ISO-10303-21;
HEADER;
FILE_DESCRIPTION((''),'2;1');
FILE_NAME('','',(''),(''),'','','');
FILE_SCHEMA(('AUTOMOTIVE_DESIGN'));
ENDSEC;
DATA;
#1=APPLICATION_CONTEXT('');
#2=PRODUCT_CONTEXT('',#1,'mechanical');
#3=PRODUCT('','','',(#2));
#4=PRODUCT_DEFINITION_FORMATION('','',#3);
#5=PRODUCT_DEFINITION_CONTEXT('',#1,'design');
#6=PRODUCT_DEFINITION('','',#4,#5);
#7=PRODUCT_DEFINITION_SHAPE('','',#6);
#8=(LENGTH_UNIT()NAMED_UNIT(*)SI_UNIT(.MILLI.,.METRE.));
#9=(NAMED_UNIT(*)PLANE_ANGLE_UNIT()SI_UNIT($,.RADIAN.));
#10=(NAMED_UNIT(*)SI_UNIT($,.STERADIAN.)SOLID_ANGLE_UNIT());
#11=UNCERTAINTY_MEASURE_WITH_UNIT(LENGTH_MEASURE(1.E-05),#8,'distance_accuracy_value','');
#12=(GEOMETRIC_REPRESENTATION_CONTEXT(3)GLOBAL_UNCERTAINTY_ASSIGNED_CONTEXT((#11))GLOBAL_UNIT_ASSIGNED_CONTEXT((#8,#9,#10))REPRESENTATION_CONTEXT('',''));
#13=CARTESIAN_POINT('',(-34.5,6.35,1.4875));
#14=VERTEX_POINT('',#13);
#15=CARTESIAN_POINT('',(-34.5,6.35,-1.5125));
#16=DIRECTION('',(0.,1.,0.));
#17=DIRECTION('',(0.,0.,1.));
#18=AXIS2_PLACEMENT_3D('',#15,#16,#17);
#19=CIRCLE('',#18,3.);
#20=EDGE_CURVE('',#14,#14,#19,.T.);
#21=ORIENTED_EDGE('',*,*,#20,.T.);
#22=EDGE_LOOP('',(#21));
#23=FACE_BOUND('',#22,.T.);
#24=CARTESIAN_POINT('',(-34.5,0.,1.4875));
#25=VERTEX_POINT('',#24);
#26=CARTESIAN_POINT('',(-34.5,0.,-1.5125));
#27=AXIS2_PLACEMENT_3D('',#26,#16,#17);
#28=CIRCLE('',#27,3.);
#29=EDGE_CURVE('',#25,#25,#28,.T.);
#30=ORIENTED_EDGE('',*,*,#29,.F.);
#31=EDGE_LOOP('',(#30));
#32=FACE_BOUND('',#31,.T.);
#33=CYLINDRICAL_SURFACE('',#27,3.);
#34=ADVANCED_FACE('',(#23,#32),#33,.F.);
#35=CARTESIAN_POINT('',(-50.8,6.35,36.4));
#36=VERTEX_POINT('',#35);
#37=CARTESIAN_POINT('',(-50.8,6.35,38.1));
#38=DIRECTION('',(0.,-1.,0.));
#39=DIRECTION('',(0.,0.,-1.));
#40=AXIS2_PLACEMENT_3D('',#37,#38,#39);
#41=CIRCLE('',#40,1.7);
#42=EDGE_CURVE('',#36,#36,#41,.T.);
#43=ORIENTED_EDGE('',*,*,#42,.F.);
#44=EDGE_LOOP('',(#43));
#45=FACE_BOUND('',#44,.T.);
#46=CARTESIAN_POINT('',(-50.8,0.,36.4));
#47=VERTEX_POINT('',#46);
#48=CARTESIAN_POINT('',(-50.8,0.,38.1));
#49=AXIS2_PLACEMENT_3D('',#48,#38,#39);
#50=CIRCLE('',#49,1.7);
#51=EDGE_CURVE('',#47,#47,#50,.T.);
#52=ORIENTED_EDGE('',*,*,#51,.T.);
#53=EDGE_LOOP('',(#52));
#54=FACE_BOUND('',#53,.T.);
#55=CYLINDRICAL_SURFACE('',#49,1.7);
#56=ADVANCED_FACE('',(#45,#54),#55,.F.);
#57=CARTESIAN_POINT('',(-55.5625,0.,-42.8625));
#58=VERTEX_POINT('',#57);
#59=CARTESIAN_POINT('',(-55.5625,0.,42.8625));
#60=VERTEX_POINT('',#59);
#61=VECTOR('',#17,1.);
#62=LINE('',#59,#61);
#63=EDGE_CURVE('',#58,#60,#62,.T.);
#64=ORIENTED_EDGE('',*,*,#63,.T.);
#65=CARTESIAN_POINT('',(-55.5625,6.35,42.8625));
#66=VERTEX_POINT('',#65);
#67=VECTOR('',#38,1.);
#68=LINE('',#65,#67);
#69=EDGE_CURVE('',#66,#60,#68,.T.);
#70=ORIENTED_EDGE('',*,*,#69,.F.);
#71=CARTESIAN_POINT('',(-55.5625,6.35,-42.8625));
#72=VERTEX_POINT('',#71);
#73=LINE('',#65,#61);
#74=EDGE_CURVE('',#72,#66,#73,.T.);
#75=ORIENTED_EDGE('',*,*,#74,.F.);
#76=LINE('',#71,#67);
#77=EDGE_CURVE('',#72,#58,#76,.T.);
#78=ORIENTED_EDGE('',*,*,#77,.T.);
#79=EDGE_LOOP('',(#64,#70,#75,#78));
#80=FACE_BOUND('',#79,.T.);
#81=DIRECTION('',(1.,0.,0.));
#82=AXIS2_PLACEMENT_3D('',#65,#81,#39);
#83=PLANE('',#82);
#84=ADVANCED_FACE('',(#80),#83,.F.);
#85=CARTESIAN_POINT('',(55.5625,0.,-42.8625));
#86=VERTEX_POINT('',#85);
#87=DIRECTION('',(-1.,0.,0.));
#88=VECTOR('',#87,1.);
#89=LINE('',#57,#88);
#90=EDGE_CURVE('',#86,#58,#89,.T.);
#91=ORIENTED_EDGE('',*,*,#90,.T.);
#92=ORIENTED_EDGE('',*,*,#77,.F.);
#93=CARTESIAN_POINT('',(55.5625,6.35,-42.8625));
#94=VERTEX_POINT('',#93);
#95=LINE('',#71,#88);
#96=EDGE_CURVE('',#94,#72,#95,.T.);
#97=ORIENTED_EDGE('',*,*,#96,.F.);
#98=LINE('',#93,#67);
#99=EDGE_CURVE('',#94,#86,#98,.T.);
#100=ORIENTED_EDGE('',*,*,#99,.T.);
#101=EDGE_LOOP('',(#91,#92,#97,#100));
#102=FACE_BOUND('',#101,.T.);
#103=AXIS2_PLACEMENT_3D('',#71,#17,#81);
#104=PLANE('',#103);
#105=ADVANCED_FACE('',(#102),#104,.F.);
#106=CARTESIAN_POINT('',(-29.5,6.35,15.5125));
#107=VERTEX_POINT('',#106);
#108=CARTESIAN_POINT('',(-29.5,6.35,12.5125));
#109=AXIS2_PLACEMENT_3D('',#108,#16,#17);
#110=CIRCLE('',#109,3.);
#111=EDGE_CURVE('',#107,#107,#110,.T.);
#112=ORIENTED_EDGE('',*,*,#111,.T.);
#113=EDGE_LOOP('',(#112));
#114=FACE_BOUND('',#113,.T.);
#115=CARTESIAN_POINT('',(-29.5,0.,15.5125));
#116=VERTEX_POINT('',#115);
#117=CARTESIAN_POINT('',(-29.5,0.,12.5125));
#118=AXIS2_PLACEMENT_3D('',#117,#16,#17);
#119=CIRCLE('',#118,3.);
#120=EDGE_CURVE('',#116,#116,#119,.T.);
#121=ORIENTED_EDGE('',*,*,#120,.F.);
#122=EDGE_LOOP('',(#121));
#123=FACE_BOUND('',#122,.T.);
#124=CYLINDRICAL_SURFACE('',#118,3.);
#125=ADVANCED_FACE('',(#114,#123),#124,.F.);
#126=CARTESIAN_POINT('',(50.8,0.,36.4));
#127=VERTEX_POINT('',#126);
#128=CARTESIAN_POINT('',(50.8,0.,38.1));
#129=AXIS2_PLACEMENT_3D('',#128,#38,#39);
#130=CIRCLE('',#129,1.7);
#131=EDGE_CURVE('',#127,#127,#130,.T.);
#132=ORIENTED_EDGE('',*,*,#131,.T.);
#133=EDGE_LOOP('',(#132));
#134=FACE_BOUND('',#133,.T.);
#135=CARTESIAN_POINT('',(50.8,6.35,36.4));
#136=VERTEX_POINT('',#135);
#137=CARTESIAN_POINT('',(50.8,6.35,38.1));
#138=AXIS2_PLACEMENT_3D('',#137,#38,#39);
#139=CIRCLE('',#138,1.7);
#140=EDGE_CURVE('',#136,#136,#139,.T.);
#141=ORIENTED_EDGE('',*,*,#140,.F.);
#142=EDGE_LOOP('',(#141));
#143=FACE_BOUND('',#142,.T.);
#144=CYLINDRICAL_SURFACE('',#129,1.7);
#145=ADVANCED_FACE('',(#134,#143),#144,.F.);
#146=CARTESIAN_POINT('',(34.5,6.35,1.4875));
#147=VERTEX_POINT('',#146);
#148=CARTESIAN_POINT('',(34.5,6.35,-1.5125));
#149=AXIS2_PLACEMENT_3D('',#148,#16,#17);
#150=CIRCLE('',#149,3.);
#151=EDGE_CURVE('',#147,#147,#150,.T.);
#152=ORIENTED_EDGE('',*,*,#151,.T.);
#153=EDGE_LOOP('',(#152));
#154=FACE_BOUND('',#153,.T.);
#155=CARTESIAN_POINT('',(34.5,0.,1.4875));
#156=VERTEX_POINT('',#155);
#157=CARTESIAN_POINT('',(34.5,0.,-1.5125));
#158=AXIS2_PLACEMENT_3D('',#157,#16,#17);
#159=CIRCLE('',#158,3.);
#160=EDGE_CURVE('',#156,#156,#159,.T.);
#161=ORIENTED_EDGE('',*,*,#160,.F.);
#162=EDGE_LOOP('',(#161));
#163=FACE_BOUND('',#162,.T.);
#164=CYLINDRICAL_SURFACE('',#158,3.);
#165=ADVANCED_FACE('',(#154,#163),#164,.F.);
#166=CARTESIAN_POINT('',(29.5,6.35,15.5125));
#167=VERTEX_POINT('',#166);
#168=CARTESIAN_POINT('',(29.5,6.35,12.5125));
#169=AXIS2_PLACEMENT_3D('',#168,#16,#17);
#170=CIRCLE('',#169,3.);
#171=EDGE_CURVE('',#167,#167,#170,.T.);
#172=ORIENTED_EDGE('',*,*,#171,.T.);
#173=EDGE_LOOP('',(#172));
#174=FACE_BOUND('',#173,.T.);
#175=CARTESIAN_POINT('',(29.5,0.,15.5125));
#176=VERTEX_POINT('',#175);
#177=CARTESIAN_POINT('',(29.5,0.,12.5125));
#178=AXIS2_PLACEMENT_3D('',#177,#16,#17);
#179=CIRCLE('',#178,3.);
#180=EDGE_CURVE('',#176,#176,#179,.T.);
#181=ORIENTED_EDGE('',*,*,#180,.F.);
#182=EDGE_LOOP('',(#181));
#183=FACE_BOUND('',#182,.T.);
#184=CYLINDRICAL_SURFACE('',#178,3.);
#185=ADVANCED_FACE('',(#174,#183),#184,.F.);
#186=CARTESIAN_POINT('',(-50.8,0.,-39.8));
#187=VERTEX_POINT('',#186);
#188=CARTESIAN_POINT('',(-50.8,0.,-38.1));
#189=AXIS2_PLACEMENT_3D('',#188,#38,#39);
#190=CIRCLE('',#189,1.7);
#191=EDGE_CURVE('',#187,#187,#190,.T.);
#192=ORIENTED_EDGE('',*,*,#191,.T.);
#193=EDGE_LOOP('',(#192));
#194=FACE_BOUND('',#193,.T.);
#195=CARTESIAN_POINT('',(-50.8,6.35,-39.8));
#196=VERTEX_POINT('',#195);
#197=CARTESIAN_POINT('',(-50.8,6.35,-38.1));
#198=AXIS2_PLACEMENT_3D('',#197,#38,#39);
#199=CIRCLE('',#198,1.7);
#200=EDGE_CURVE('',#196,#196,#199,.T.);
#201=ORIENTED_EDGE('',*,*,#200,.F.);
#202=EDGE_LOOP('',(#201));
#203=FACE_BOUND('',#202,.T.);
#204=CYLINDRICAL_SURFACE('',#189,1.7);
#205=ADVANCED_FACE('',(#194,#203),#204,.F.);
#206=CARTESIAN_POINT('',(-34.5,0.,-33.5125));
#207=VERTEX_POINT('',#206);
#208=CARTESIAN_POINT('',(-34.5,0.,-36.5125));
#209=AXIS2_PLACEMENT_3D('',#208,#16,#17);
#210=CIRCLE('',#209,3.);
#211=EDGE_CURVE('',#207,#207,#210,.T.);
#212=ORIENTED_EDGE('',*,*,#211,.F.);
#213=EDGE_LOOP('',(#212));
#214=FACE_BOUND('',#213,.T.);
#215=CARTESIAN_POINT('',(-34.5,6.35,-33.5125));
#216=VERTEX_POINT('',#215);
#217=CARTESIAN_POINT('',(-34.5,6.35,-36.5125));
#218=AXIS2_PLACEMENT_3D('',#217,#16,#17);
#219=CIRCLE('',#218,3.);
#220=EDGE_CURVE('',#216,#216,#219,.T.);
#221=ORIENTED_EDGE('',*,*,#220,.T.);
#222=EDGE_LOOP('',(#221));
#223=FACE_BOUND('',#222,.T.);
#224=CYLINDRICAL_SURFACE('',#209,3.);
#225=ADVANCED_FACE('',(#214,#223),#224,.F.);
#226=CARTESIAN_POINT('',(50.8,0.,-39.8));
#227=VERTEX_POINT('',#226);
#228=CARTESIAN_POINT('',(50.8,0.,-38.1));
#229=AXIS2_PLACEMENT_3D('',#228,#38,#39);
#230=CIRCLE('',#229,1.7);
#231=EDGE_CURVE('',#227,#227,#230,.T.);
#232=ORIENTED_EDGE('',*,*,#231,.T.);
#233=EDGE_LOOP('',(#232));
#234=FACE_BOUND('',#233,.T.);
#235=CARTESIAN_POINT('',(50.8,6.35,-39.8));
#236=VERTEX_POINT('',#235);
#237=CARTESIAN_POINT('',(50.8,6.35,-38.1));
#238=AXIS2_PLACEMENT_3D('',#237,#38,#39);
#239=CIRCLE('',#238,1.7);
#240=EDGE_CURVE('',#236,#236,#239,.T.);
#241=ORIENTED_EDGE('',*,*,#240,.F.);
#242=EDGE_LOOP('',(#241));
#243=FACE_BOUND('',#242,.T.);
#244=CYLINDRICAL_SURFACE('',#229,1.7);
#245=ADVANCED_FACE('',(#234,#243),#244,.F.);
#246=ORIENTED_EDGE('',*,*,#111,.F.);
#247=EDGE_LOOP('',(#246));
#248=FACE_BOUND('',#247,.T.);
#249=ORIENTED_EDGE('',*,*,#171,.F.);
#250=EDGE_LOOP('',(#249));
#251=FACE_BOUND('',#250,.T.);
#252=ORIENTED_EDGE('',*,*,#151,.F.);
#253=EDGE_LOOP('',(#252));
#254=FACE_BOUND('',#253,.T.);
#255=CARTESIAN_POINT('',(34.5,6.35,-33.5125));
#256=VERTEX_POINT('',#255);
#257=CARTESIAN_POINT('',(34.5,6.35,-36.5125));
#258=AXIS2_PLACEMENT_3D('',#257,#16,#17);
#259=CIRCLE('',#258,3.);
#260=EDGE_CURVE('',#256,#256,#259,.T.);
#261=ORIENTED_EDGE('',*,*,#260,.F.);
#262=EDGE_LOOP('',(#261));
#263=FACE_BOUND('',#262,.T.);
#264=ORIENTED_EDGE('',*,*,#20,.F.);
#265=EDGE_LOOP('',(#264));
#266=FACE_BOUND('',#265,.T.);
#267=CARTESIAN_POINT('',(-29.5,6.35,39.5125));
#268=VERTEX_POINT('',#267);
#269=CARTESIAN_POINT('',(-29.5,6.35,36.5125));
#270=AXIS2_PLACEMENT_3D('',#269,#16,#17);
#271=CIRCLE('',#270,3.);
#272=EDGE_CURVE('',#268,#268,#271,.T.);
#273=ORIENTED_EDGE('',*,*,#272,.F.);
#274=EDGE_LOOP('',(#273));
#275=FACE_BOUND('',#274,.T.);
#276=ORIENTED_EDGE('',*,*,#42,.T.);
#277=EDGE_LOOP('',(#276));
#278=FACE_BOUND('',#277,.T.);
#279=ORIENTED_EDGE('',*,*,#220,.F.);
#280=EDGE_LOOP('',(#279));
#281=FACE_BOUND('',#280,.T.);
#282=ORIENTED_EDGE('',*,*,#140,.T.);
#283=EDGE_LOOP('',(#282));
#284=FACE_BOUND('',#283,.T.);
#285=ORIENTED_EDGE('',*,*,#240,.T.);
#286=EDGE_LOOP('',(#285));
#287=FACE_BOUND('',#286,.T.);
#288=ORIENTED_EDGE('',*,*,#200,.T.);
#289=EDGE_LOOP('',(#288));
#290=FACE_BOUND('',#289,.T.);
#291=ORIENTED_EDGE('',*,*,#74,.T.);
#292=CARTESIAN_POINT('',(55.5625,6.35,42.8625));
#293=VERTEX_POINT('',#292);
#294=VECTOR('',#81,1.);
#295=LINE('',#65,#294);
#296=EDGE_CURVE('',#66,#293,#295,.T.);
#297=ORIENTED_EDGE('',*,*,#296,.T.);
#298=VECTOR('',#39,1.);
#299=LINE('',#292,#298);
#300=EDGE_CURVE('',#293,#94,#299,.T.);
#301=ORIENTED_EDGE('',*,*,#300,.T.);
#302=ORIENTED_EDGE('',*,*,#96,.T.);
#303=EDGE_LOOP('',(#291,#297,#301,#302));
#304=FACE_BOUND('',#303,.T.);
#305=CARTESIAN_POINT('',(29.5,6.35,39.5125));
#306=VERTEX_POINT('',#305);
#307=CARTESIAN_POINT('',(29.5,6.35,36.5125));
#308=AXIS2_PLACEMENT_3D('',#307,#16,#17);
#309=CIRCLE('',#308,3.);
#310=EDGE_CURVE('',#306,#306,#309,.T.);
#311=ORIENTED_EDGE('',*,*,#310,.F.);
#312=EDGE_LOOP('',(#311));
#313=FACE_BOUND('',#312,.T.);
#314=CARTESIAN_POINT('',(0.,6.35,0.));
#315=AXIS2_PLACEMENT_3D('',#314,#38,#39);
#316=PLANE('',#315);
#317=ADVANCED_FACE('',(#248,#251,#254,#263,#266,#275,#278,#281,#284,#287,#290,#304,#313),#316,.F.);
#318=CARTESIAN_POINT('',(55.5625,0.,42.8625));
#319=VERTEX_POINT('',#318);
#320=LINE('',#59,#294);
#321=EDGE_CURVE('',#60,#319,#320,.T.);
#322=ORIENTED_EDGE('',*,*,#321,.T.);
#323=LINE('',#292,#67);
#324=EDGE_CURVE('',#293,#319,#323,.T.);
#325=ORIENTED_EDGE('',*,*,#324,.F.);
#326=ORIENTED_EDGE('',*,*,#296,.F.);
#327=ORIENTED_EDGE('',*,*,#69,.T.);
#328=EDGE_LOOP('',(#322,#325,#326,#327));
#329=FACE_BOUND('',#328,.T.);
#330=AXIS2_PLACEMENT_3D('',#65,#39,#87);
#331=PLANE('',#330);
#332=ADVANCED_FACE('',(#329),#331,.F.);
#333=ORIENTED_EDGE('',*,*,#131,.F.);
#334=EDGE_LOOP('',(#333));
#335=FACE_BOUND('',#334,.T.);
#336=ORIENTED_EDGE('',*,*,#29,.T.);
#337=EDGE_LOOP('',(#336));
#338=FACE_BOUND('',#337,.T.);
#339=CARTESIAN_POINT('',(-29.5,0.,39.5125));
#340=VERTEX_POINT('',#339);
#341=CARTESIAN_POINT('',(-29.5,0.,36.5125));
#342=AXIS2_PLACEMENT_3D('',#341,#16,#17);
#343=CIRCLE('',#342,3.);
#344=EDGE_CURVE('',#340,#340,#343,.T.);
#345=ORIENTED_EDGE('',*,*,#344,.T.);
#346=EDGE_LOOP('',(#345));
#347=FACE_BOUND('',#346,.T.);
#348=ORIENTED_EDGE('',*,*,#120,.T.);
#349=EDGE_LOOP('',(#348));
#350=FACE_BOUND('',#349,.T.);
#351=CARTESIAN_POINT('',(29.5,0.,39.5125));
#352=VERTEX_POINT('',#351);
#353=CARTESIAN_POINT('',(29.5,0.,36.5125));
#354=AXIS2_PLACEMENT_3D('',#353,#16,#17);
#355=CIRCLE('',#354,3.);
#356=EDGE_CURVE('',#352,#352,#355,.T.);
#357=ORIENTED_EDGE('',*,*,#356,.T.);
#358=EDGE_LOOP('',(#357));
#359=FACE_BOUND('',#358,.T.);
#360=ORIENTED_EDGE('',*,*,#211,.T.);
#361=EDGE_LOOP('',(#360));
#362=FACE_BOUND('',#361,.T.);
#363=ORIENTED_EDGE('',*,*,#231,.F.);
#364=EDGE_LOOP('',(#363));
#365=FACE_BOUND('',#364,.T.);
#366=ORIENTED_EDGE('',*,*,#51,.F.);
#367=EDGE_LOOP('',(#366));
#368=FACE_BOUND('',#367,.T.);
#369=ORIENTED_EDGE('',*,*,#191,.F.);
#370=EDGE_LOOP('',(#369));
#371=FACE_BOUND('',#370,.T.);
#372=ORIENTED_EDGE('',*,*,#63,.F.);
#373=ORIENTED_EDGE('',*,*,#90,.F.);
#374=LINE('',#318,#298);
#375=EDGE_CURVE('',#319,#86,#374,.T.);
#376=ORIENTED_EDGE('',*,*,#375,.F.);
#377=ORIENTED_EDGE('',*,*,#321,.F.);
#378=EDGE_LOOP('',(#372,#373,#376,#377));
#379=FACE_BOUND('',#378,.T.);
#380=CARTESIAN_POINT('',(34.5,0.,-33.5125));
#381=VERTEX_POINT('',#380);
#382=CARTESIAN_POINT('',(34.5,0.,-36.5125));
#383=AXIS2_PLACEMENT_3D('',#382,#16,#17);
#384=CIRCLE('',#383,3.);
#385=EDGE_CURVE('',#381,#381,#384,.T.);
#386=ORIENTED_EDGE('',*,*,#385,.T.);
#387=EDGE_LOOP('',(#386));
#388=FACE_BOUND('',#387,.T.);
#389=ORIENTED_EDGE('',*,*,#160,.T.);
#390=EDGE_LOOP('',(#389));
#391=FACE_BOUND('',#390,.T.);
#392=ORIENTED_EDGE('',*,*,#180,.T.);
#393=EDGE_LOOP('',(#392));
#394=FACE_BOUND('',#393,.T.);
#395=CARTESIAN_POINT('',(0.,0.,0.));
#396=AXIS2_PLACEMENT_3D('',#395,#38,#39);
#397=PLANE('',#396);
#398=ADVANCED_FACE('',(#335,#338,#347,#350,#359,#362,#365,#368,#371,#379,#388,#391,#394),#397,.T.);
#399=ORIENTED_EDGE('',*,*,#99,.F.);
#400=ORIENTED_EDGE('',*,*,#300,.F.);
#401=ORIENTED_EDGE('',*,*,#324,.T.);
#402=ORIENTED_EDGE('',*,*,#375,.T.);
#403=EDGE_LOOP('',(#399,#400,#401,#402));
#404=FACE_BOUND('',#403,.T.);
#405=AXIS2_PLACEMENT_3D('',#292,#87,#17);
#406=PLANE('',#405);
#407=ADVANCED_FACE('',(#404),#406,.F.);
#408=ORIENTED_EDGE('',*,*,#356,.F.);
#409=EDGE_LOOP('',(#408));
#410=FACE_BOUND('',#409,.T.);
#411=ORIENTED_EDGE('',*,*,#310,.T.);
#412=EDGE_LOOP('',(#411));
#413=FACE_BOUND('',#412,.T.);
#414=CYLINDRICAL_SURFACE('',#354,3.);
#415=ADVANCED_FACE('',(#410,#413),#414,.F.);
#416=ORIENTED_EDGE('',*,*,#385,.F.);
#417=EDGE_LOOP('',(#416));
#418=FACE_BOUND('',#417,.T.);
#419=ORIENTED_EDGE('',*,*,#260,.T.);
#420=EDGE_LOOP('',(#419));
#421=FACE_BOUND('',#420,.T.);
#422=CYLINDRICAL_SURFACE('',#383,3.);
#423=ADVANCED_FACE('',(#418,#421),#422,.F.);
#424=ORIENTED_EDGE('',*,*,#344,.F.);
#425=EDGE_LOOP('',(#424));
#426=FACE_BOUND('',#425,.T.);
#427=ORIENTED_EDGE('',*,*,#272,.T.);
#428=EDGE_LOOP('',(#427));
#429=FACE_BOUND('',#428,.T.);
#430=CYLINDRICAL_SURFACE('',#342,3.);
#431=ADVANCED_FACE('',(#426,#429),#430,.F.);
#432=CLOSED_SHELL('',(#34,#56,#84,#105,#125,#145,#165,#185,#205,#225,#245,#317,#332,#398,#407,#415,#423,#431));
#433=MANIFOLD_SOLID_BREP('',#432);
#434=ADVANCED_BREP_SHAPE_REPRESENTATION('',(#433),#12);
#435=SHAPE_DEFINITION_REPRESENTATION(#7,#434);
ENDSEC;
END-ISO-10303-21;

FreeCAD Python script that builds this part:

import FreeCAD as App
import Part
import Sketcher
from FreeCAD import Vector
Q = App.Units.Quantity


def add_polygon(sketch, points):
    """Adds a closed chain of lines whose ends are joined by coincident constraints."""
    first, n = sketch.GeometryCount, len(points)
    for a, b in zip(points, points[1:] + points[:1]):
        sketch.addGeometry(Part.LineSegment(App.Vector(*a, 0), App.Vector(*b, 0)), False)
    for i in range(n):
        sketch.addConstraint(Sketcher.Constraint("Coincident", first + i, 2, first + (i + 1) % n, 1))

doc = App.newDocument("Part")
body = doc.addObject("PartDesign::Body", "Body")

sketch1 = body.newObject("Sketcher::SketchObject", "Sketch")
sketch1.AttachmentSupport = (doc.getObject("XZ_Plane"), [""])
sketch1.MapMode = "FlatFace"
add_polygon(sketch1, [(-56, -43), (-56, 43), (56, 43), (56, -43)])
sketch1.addConstraint(Sketcher.Constraint("Vertical", 0))
sketch1.addConstraint(Sketcher.Constraint("Horizontal", 1))
sketch1.addConstraint(Sketcher.Constraint("Vertical", 2))
sketch1.addConstraint(Sketcher.Constraint("Horizontal", 3))
sketch1.addConstraint(Sketcher.Constraint("Symmetric", 0, 2, 2, 2, -1, 1))
sketch1.addConstraint(Sketcher.Constraint("DistanceX", 1, 1, 1, 2, Q("4.375 in")))
sketch1.addConstraint(Sketcher.Constraint("DistanceY", 0, 1, 0, 2, Q("3.375 in")))
pad1 = body.newObject("PartDesign::Pad", "Pad")
pad1.Profile = sketch1
pad1.Length = Q("0.25 in")
pad1.Reversed = True

sketch2 = body.newObject("Sketcher::SketchObject", "Sketch001")
sketch2.AttachmentSupport = (doc.getObject("XZ_Plane"), [""])
sketch2.MapMode = "FlatFace"
sketch2.addGeometry(Part.Circle(Vector(-50.8, 38.1, 0), Vector(0, 0, 1), 1.7), False)
sketch2.addGeometry(Part.Circle(Vector(50.8, 38.1, 0), Vector(0, 0, 1), 1.7), False)
sketch2.addGeometry(Part.Circle(Vector(-50.8, -38.1, 0), Vector(0, 0, 1), 1.7), False)
sketch2.addGeometry(Part.Circle(Vector(50.8, -38.1, 0), Vector(0, 0, 1), 1.7), False)
sketch2.addConstraint(Sketcher.Constraint("Equal", 0, 1))
sketch2.addConstraint(Sketcher.Constraint("Equal", 1, 2))
sketch2.addConstraint(Sketcher.Constraint("Equal", 2, 3))
sketch2.addConstraint(Sketcher.Constraint("Symmetric", 1, 3, 2, 3, -1, 1))
sketch2.addConstraint(Sketcher.Constraint("Symmetric", 0, 3, 3, 3, -1, 1))
sketch2.addConstraint(Sketcher.Constraint("Symmetric", 0, 3, 1, 3, -2))
sketch2.addConstraint(Sketcher.Constraint("DistanceX", 0, 3, -1, 1, Q("2 in")))
sketch2.addConstraint(Sketcher.Constraint("DistanceY", 2, 3, 0, 3, Q("3 in")))
sketch2.addConstraint(Sketcher.Constraint("Diameter", 0, 3.4))
doc.recompute()
hole = body.newObject("PartDesign::Hole", "Hole")
hole.Profile = sketch2
hole.ThreadType = "None"
hole.Diameter = 3.4
hole.DepthType = "ThroughAll"

sketch3 = body.newObject("Sketcher::SketchObject", "Sketch002")
sketch3.AttachmentSupport = (doc.getObject("XZ_Plane"), [""])
sketch3.MapMode = "FlatFace"
sketch3.AttachmentOffset = App.Placement(Vector(0, 0, -0.25 * 25.4), App.Rotation())
sketch3.addGeometry(Part.Circle(Vector(-34.5, -36.5, 0), Vector(0, 0, 1), 3), False)
sketch3.addGeometry(Part.Circle(Vector(34.5, -36.5, 0), Vector(0, 0, 1), 3), False)
sketch3.addGeometry(Part.Circle(Vector(34.5, -1.5, 0), Vector(0, 0, 1), 3), False)
sketch3.addGeometry(Part.Circle(Vector(-34.5, -1.5, 0), Vector(0, 0, 1), 3), False)
sketch3.addGeometry(Part.Circle(Vector(-29.5, 12.5, 0), Vector(0, 0, 1), 3), False)
sketch3.addGeometry(Part.Circle(Vector(-29.5, 36.5, 0), Vector(0, 0, 1), 3), False)
sketch3.addGeometry(Part.Circle(Vector(29.5, 36.5, 0), Vector(0, 0, 1), 3), False)
sketch3.addGeometry(Part.Circle(Vector(29.5, 12.5, 0), Vector(0, 0, 1), 3), False)
sketch3.addConstraint(Sketcher.Constraint("Equal", 0, 1))
sketch3.addConstraint(Sketcher.Constraint("Equal", 1, 2))
sketch3.addConstraint(Sketcher.Constraint("Equal", 2, 3))
sketch3.addConstraint(Sketcher.Constraint("Equal", 3, 4))
sketch3.addConstraint(Sketcher.Constraint("Equal", 4, 5))
sketch3.addConstraint(Sketcher.Constraint("Equal", 5, 6))
sketch3.addConstraint(Sketcher.Constraint("Equal", 6, 7))
sketch3.addConstraint(Sketcher.Constraint("Symmetric", 0, 3, 1, 3, -2))
sketch3.addConstraint(Sketcher.Constraint("Symmetric", 2, 3, 3, 3, -2))
sketch3.addConstraint(Sketcher.Constraint("Symmetric", 5, 3, 6, 3, -2))
sketch3.addConstraint(Sketcher.Constraint("Symmetric", 4, 3, 7, 3, -2))
sketch3.addConstraint(Sketcher.Constraint("Vertical", 1, 3, 2, 3))
sketch3.addConstraint(Sketcher.Constraint("Vertical", 4, 3, 5, 3))
sketch3.addConstraint(Sketcher.Constraint("Diameter", 0, 6.0))
sketch3.addConstraint(Sketcher.Constraint("DistanceY", 0, 3, -1, 1, Q("1.4375 in")))
sketch3.addConstraint(Sketcher.Constraint("DistanceY", -1, 1, 5, 3, Q("1.4375 in")))
sketch3.addConstraint(Sketcher.Constraint("DistanceX", 0, 3, -1, 1, 34.5))
sketch3.addConstraint(Sketcher.Constraint("DistanceY", 2, 3, -1, 1, 1.5125))
sketch3.addConstraint(Sketcher.Constraint("DistanceX", 4, 3, -1, 1, 29.5))
sketch3.addConstraint(Sketcher.Constraint("DistanceY", -1, 1, 4, 3, 12.5125))
pocket1 = body.newObject("PartDesign::Pocket", "Pocket")
pocket1.Profile = sketch3
pocket1.Type = "ThroughAll"
pocket1.Reversed = True

doc.recompute()
